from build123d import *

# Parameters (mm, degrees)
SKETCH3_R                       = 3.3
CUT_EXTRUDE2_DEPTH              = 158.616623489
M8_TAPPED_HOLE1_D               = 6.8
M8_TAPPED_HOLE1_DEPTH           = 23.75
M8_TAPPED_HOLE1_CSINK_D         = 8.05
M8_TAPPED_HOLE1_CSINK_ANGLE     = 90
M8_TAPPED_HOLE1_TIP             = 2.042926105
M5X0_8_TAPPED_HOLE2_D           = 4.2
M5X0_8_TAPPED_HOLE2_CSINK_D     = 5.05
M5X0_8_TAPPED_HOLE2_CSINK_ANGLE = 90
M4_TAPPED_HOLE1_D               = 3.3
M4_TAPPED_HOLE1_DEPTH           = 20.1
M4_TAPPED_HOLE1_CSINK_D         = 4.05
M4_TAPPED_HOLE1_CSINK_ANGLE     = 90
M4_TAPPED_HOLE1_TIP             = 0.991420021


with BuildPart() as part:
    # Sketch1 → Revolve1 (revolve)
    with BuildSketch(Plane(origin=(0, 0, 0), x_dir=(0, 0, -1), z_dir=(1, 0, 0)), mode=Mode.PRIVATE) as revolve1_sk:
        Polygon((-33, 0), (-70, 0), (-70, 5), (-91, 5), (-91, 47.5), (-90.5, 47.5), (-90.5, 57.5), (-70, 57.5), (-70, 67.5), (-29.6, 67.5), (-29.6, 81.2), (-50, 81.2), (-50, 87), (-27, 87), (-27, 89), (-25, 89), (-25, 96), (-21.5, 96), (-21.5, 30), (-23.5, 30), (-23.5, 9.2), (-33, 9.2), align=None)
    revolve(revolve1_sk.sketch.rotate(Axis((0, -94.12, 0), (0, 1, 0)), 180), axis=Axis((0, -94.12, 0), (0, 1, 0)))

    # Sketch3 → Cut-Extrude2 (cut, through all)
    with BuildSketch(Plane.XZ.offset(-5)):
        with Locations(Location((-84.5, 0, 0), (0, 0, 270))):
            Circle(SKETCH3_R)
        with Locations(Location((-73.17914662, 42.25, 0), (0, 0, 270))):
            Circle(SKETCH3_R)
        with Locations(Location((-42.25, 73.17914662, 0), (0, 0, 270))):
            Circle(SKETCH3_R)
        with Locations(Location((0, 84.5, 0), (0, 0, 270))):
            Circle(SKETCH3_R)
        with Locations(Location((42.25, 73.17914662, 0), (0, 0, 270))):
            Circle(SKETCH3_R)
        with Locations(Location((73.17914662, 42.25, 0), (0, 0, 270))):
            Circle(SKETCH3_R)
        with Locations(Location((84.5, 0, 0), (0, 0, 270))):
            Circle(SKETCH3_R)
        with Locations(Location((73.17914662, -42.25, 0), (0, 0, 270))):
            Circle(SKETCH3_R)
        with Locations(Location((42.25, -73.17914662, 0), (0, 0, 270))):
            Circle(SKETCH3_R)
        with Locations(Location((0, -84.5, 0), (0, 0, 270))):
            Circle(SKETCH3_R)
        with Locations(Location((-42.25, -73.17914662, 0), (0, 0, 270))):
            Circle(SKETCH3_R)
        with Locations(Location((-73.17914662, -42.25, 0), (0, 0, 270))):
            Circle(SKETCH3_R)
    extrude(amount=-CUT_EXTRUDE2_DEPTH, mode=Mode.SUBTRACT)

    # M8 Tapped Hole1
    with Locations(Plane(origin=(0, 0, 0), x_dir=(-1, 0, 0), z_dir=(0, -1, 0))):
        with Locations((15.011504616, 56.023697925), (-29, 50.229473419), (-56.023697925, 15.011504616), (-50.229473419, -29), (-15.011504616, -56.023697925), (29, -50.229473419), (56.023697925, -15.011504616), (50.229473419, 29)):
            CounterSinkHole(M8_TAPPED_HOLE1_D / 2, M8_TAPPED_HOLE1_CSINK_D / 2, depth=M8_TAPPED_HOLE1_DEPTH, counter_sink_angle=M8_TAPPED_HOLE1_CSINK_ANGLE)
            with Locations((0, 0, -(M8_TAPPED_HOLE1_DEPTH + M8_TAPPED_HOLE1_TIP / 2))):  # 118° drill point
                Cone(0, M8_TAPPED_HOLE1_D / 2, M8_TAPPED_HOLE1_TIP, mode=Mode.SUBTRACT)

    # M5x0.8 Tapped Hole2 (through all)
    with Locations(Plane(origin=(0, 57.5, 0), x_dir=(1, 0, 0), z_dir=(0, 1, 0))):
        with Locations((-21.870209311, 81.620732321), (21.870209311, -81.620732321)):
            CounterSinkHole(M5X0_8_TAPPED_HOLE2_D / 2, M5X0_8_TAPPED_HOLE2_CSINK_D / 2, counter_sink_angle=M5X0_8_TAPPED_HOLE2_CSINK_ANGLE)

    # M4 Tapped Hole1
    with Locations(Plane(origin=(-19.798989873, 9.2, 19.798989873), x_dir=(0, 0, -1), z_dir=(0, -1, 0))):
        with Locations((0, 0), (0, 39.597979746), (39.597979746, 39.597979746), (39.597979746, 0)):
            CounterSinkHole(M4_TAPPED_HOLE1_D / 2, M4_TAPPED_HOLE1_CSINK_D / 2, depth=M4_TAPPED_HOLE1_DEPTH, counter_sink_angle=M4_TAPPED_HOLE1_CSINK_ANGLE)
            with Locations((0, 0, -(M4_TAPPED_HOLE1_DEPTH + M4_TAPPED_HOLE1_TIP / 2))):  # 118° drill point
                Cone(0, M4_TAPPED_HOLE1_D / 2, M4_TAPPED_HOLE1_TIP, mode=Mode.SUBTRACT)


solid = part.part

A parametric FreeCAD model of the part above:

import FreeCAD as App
import Part
import Sketcher

V = App.Vector


def add_polygon(sketch, points):
    """Adds a closed chain of lines whose ends are joined by coincident constraints."""
    first, n = sketch.GeometryCount, len(points)
    for a, b in zip(points, points[1:] + points[:1]):
        sketch.addGeometry(Part.LineSegment(App.Vector(*a, 0), App.Vector(*b, 0)), False)
    for i in range(n):
        sketch.addConstraint(Sketcher.Constraint("Coincident", first + i, 2, first + (i + 1) % n, 1))

doc = App.newDocument("Part")
body = doc.addObject("PartDesign::Body", "Body")

sketch1 = doc.addObject("Sketcher::SketchObject", "Sketch")
body.addObject(sketch1)
sketch1.AttachmentSupport = (doc.YZ_Plane, [""])
sketch1.MapMode = "FlatFace"
add_polygon(sketch1, [(0, 70), (0, 33), (9.2, 33), (9.2, 23.5), (30, 23.5), (30, 21.5), (96, 21.5), (96, 25), (89, 25), (89, 27), (87, 27), (87, 50), (81.2, 50), (81.2, 29.6), (67.5, 29.6), (67.5, 70), (57.5, 70), (57.5, 90.5), (47.5, 90.5), (47.5, 91), (5, 91), (5, 70)])
sketch1.addConstraint(Sketcher.Constraint("Vertical", 0))
sketch1.addConstraint(Sketcher.Constraint("Horizontal", 1))
sketch1.addConstraint(Sketcher.Constraint("Vertical", 2))
sketch1.addConstraint(Sketcher.Constraint("Horizontal", 3))
sketch1.addConstraint(Sketcher.Constraint("Vertical", 4))
sketch1.addConstraint(Sketcher.Constraint("Horizontal", 5))
sketch1.addConstraint(Sketcher.Constraint("Vertical", 6))
sketch1.addConstraint(Sketcher.Constraint("Horizontal", 7))
sketch1.addConstraint(Sketcher.Constraint("Vertical", 8))
sketch1.addConstraint(Sketcher.Constraint("Horizontal", 9))
sketch1.addConstraint(Sketcher.Constraint("Vertical", 10))
sketch1.addConstraint(Sketcher.Constraint("Horizontal", 11))
sketch1.addConstraint(Sketcher.Constraint("Vertical", 12))
sketch1.addConstraint(Sketcher.Constraint("Horizontal", 13))
sketch1.addConstraint(Sketcher.Constraint("Vertical", 14))
sketch1.addConstraint(Sketcher.Constraint("Horizontal", 15))
sketch1.addConstraint(Sketcher.Constraint("Vertical", 16))
sketch1.addConstraint(Sketcher.Constraint("Horizontal", 17))
sketch1.addConstraint(Sketcher.Constraint("Vertical", 18))
sketch1.addConstraint(Sketcher.Constraint("Horizontal", 19))
sketch1.addConstraint(Sketcher.Constraint("Vertical", 20))
sketch1.addConstraint(Sketcher.Constraint("Horizontal", 21))
sketch1.addConstraint(Sketcher.Constraint("PointOnObject", 0, 2, -2))
sketch1.addConstraint(Sketcher.Constraint("Horizontal", 15, 2, 20, 2))
sketch1.addConstraint(Sketcher.Constraint("Equal", 15, 17))
sketch1.addConstraint(Sketcher.Constraint("Equal", 9, 4))
sketch1.addConstraint(Sketcher.Constraint("Equal", 4, 8))
sketch1.addConstraint(Sketcher.Constraint("DistanceX", 5, 1, 5, 2, 66.0))
sketch1.addConstraint(Sketcher.Constraint("DistanceX", 7, 2, 7, 1, 7.0))
sketch1.addConstraint(Sketcher.Constraint("DistanceX", 9, 2, 9, 1, 2.0))
sketch1.addConstraint(Sketcher.Constraint("DistanceX", 15, 2, 15, 1, 10.0))
sketch1.addConstraint(Sketcher.Constraint("DistanceX", 21, 2, 21, 1, 5.0))
sketch1.addConstraint(Sketcher.Constraint("DistanceY", 0, 2, 0, 1, 37.0))
sketch1.addConstraint(Sketcher.Constraint("DistanceY", 10, 1, 10, 2, 23.0))
sketch1.addConstraint(Sketcher.Constraint("DistanceY", 20, 2, 20, 1, 21.0))
sketch1.addConstraint(Sketcher.Constraint("DistanceX", 1, 1, 1, 2, 9.2))
sketch1.addConstraint(Sketcher.Constraint("DistanceX", 3, 1, 3, 2, 20.8))
sketch1.addConstraint(Sketcher.Constraint("DistanceX", 11, 2, 11, 1, 5.8))
sketch1.addConstraint(Sketcher.Constraint("DistanceX", 13, 2, 13, 1, 13.7))
sketch1.addConstraint(Sketcher.Constraint("DistanceY", 2, 2, 2, 1, 9.5))
sketch1.addConstraint(Sketcher.Constraint("DistanceY", 6, 1, 6, 2, 3.5))
sketch1.addConstraint(Sketcher.Constraint("DistanceY", 12, 2, 12, 1, 20.4))
sketch1.addConstraint(Sketcher.Constraint("DistanceY", 16, 1, 16, 2, 20.5))
sketch1.addConstraint(Sketcher.Constraint("DistanceY", -1, 1, 0, 2, 33.0))
revolution = doc.addObject("PartDesign::Revolution", "Revolution")
body.addObject(revolution)
revolution.Profile = sketch1
revolution.ReferenceAxis = (sketch1, ["H_Axis"])
revolution.Angle = 360

sketch2 = doc.addObject("Sketcher::SketchObject", "Sketch001")
body.addObject(sketch2)
sketch2.AttachmentSupport = (doc.XZ_Plane, [""])
sketch2.MapMode = "FlatFace"
sketch2.AttachmentOffset = App.Placement(V(0, 0, -5), App.Rotation())
sketch2.addGeometry(Part.Circle(V(-84.5, 0, 0), V(0, 0, 1), 3.3), False)
sketch2.addGeometry(Part.Circle(V(-73.2, 42.2, 0), V(0, 0, 1), 3.3), False)
sketch2.addGeometry(Part.Circle(V(-42.2, 73.2, 0), V(0, 0, 1), 3.3), False)
sketch2.addGeometry(Part.Circle(V(0, 84.5, 0), V(0, 0, 1), 3.3), False)
sketch2.addGeometry(Part.Circle(V(42.2, 73.2, 0), V(0, 0, 1), 3.3), False)
sketch2.addGeometry(Part.Circle(V(73.2, 42.2, 0), V(0, 0, 1), 3.3), False)
sketch2.addGeometry(Part.Circle(V(84.5, 0, 0), V(0, 0, 1), 3.3), False)
sketch2.addGeometry(Part.Circle(V(73.2, -42.2, 0), V(0, 0, 1), 3.3), False)
sketch2.addGeometry(Part.Circle(V(42.2, -73.2, 0), V(0, 0, 1), 3.3), False)
sketch2.addGeometry(Part.Circle(V(0, -84.5, 0), V(0, 0, 1), 3.3), False)
sketch2.addGeometry(Part.Circle(V(-42.2, -73.2, 0), V(0, 0, 1), 3.3), False)
sketch2.addGeometry(Part.Circle(V(-73.2, -42.2, 0), V(0, 0, 1), 3.3), False)
sketch2.addConstraint(Sketcher.Constraint("Equal", 0, 1))
sketch2.addConstraint(Sketcher.Constraint("Equal", 1, 2))
sketch2.addConstraint(Sketcher.Constraint("Equal", 2, 3))
sketch2.addConstraint(Sketcher.Constraint("Equal", 3, 4))
sketch2.addConstraint(Sketcher.Constraint("Equal", 4, 5))
sketch2.addConstraint(Sketcher.Constraint("Equal", 5, 6))
sketch2.addConstraint(Sketcher.Constraint("Equal", 6, 7))
sketch2.addConstraint(Sketcher.Constraint("Equal", 7, 8))
sketch2.addConstraint(Sketcher.Constraint("Equal", 8, 9))
sketch2.addConstraint(Sketcher.Constraint("Equal", 9, 10))
sketch2.addConstraint(Sketcher.Constraint("Equal", 10, 11))
sketch2.addConstraint(Sketcher.Constraint("Symmetric", 0, 3, 6, 3, -1, 1))
sketch2.addConstraint(Sketcher.Constraint("Symmetric", 1, 3, 7, 3, -1, 1))
sketch2.addConstraint(Sketcher.Constraint("Symmetric", 2, 3, 8, 3, -1, 1))
sketch2.addConstraint(Sketcher.Constraint("Symmetric", 3, 3, 9, 3, -1, 1))
sketch2.addConstraint(Sketcher.Constraint("Symmetric", 4, 3, 10, 3, -1, 1))
sketch2.addConstraint(Sketcher.Constraint("Symmetric", 5, 3, 11, 3, -1, 1))
sketch2.addConstraint(Sketcher.Constraint("Symmetric", 2, 3, 4, 3, -2))
sketch2.addConstraint(Sketcher.Constraint("Symmetric", 1, 3, 5, 3, -2))
sketch2.addConstraint(Sketcher.Constraint("PointOnObject", 0, 3, -1))
sketch2.addConstraint(Sketcher.Constraint("PointOnObject", 3, 3, -2))
sketch2.addConstraint(Sketcher.Constraint("Diameter", 0, 6.6))
sketch2.addConstraint(Sketcher.Constraint("DistanceX", 0, 3, -1, 1, 84.5))
sketch2.addConstraint(Sketcher.Constraint("DistanceY", -1, 1, 3, 3, 84.5))
sketch2.addConstraint(Sketcher.Constraint("DistanceX", 2, 3, 4, 3, 84.5))
sketch2.addConstraint(Sketcher.Constraint("DistanceY", 7, 3, 5, 3, 84.5))
sketch2.addConstraint(Sketcher.Constraint("DistanceX", 1, 3, -1, 1, 73.179147))
sketch2.addConstraint(Sketcher.Constraint("DistanceY", -1, 1, 2, 3, 73.179147))
pocket1 = doc.addObject("PartDesign::Pocket", "Pocket")
body.addObject(pocket1)
pocket1.Profile = sketch2
pocket1.Type = "ThroughAll"

sketch3 = doc.addObject("Sketcher::SketchObject", "Sketch002")
body.addObject(sketch3)
sketch3.AttachmentSupport = (doc.XZ_Plane, [""])
sketch3.MapMode = "FlatFace"
sketch3.addGeometry(Part.Circle(V(-15, -56, 0), V(0, 0, 1), 3.4), False)
sketch3.addGeometry(Part.Circle(V(29, -50.2, 0), V(0, 0, 1), 3.4), False)
sketch3.addGeometry(Part.Circle(V(56, -15, 0), V(0, 0, 1), 3.4), False)
sketch3.addGeometry(Part.Circle(V(50.2, 29, 0), V(0, 0, 1), 3.4), False)
sketch3.addGeometry(Part.Circle(V(15, 56, 0), V(0, 0, 1), 3.4), False)
sketch3.addGeometry(Part.Circle(V(-29, 50.2, 0), V(0, 0, 1), 3.4), False)
sketch3.addGeometry(Part.Circle(V(-56, 15, 0), V(0, 0, 1), 3.4), False)
sketch3.addGeometry(Part.Circle(V(-50.2, -29, 0), V(0, 0, 1), 3.4), False)
sketch3.addConstraint(Sketcher.Constraint("Equal", 0, 1))
sketch3.addConstraint(Sketcher.Constraint("Equal", 1, 2))
sketch3.addConstraint(Sketcher.Constraint("Equal", 2, 3))
sketch3.addConstraint(Sketcher.Constraint("Equal", 3, 4))
sketch3.addConstraint(Sketcher.Constraint("Equal", 4, 5))
sketch3.addConstraint(Sketcher.Constraint("Equal", 5, 6))
sketch3.addConstraint(Sketcher.Constraint("Equal", 6, 7))
sketch3.addConstraint(Sketcher.Constraint("Symmetric", 0, 3, 4, 3, -1, 1))
sketch3.addConstraint(Sketcher.Constraint("Symmetric", 1, 3, 5, 3, -1, 1))
sketch3.addConstraint(Sketcher.Constraint("Symmetric", 2, 3, 6, 3, -1, 1))
sketch3.addConstraint(Sketcher.Constraint("Symmetric", 3, 3, 7, 3, -1, 1))
sketch3.addConstraint(Sketcher.Constraint("Diameter", 0, 6.8))
sketch3.addConstraint(Sketcher.Constraint("DistanceX", -1, 1, 1, 3, 29.0))
sketch3.addConstraint(Sketcher.Constraint("DistanceY", -1, 1, 3, 3, 29.0))
sketch3.addConstraint(Sketcher.Constraint("DistanceY", 1, 3, 2, 3, 35.217969))
sketch3.addConstraint(Sketcher.Constraint("DistanceX", 0, 3, 3, 3, 65.240978))
sketch3.addConstraint(Sketcher.Constraint("DistanceX", 4, 3, 3, 3, 35.217969))
sketch3.addConstraint(Sketcher.Constraint("DistanceY", 1, 3, 4, 3, 106.253171))
sketch3.addConstraint(Sketcher.Constraint("DistanceY", 2, 3, 5, 3, 65.240978))
sketch3.addConstraint(Sketcher.Constraint("DistanceX", 6, 3, 3, 3, 106.253171))
doc.recompute()
hole = doc.addObject("PartDesign::Hole", "Hole")
body.addObject(hole)
hole.Profile = sketch3
hole.ThreadType = "None"
hole.Diameter = 6.8
hole.DepthType = "Dimension"
hole.Depth = 23.75
hole.DrillPoint = "Angled"
hole.DrillPointAngle = 118
hole.HoleCutType = "Countersink"
hole.HoleCutDiameter = 8.05
hole.HoleCutCountersinkAngle = 90

sketch4 = doc.addObject("Sketcher::SketchObject", "Sketch003")
body.addObject(sketch4)
sketch4.AttachmentSupport = (doc.XZ_Plane, [""])
sketch4.MapMode = "FlatFace"
sketch4.AttachmentOffset = App.Placement(V(0, 0, -57.5), App.Rotation())
sketch4.addGeometry(Part.Circle(V(-21.9, -81.6, 0), V(0, 0, 1), 2.1), False)
sketch4.addGeometry(Part.Circle(V(21.9, 81.6, 0), V(0, 0, 1), 2.1), False)
sketch4.addConstraint(Sketcher.Constraint("Equal", 0, 1))
sketch4.addConstraint(Sketcher.Constraint("Symmetric", 0, 3, 1, 3, -1, 1))
sketch4.addConstraint(Sketcher.Constraint("Diameter", 0, 4.2))
sketch4.addConstraint(Sketcher.Constraint("DistanceX", 0, 3, -1, 1, 21.870209))
sketch4.addConstraint(Sketcher.Constraint("DistanceY", 0, 3, -1, 1, 81.620732))
doc.recompute()
hole2 = doc.addObject("PartDesign::Hole", "Hole001")
body.addObject(hole2)
hole2.Profile = sketch4
hole2.ThreadType = "None"
hole2.Diameter = 4.2
hole2.DepthType = "ThroughAll"
hole2.HoleCutType = "Countersink"
hole2.HoleCutDiameter = 5.05
hole2.HoleCutCountersinkAngle = 90
hole2.Reversed = True

sketch5 = doc.addObject("Sketcher::SketchObject", "Sketch004")
body.addObject(sketch5)
sketch5.AttachmentSupport = (doc.XZ_Plane, [""])
sketch5.MapMode = "FlatFace"
sketch5.AttachmentOffset = App.Placement(V(0, 0, -9.2), App.Rotation())
sketch5.addGeometry(Part.Circle(V(-19.8, 19.8, 0), V(0, 0, 1), 1.6), False)
sketch5.addGeometry(Part.Circle(V(19.8, 19.8, 0), V(0, 0, 1), 1.6), False)
sketch5.addGeometry(Part.Circle(V(19.8, -19.8, 0), V(0, 0, 1), 1.6), False)
sketch5.addGeometry(Part.Circle(V(-19.8, -19.8, 0), V(0, 0, 1), 1.6), False)
sketch5.addConstraint(Sketcher.Constraint("Equal", 0, 1))
sketch5.addConstraint(Sketcher.Constraint("Equal", 1, 2))
sketch5.addConstraint(Sketcher.Constraint("Equal", 2, 3))
sketch5.addConstraint(Sketcher.Constraint("Symmetric", 0, 3, 2, 3, -1, 1))
sketch5.addConstraint(Sketcher.Constraint("Symmetric", 1, 3, 3, 3, -1, 1))
sketch5.addConstraint(Sketcher.Constraint("Symmetric", 0, 3, 1, 3, -2))
sketch5.addConstraint(Sketcher.Constraint("Diameter", 0, 3.3))
sketch5.addConstraint(Sketcher.Constraint("DistanceX", 0, 3, -1, 1, 19.79899))
sketch5.addConstraint(Sketcher.Constraint("DistanceY", -1, 1, 0, 3, 19.79899))
doc.recompute()
hole3 = doc.addObject("PartDesign::Hole", "Hole002")
body.addObject(hole3)
hole3.Profile = sketch5
hole3.ThreadType = "None"
hole3.Diameter = 3.3
hole3.DepthType = "Dimension"
hole3.Depth = 20.1
hole3.DrillPoint = "Angled"
hole3.DrillPointAngle = 118
hole3.HoleCutType = "Countersink"
hole3.HoleCutDiameter = 4.05
hole3.HoleCutCountersinkAngle = 90

doc.recompute()
